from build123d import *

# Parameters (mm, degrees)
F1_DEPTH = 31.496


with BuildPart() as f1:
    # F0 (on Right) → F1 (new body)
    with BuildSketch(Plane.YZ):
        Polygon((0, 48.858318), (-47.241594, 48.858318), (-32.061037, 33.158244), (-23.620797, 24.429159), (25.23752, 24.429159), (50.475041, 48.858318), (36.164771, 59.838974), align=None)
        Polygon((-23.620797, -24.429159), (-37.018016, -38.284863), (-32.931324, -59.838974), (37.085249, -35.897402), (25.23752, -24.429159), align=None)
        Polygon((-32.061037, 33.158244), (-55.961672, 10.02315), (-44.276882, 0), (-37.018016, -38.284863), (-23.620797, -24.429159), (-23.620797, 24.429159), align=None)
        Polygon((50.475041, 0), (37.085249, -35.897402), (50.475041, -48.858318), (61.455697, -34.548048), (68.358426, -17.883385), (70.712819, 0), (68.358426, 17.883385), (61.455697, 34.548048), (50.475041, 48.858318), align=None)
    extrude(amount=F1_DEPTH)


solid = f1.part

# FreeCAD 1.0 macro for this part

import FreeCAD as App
import Part
import Sketcher

V = App.Vector
Q = App.Units.Quantity

doc = App.newDocument("Part")
body = doc.addObject("PartDesign::Body", "Body")
body.AllowCompound = True

# Sketch on YZ plane
sketch1 = body.newObject("Sketcher::SketchObject", "Sketch")
sketch1.AttachmentSupport = (doc.getObject("YZ_Plane"), [""])
sketch1.MapMode = "FlatFace"
sketch1.addGeometry([
    Part.LineSegment(V(0, 49, 0), V(-47, 49, 0)),  # 0
    Part.LineSegment(V(-47, 49, 0), V(-32, 33, 0)),  # 1
    Part.LineSegment(V(-32, 33, 0), V(-56, 10, 0)),  # 2
    Part.LineSegment(V(-56, 10, 0), V(-44, 0, 0)),  # 3
    Part.LineSegment(V(-44, 0, 0), V(-37, -38, 0)),  # 4
    Part.LineSegment(V(-37, -38, 0), V(-33, -60, 0)),  # 5
    Part.LineSegment(V(-33, -60, 0), V(37, -36, 0)),  # 6
    Part.LineSegment(V(37, -36, 0), V(25, -24, 0)),  # 7
    Part.LineSegment(V(25, -24, 0), V(-24, -24, 0)),  # 8
    Part.LineSegment(V(-24, -24, 0), V(-24, 24, 0)),  # 9
    Part.LineSegment(V(-24, 24, 0), V(25, 24, 0)),  # 10
    Part.LineSegment(V(25, 24, 0), V(50, 49, 0)),  # 11
    Part.LineSegment(V(50, 49, 0), V(36, 60, 0)),  # 12
    Part.LineSegment(V(36, 60, 0), V(0, 49, 0)),  # 13
    Part.LineSegment(V(50, 0, 0), V(37, -36, 0)),  # 14
    Part.LineSegment(V(37, -36, 0), V(50, -49, 0)),  # 15
    Part.LineSegment(V(50, -49, 0), V(61, -35, 0)),  # 16
    Part.LineSegment(V(61, -35, 0), V(68, -18, 0)),  # 17
    Part.LineSegment(V(68, -18, 0), V(71, 0, 0)),  # 18
    Part.LineSegment(V(71, 0, 0), V(68, 18, 0)),  # 19
    Part.LineSegment(V(68, 18, 0), V(61, 35, 0)),  # 20
    Part.LineSegment(V(61, 35, 0), V(50, 49, 0)),  # 21
    Part.LineSegment(V(50, 49, 0), V(50, 0, 0)),  # 22
], False)
sketch1.addConstraint([
    Sketcher.Constraint("Coincident", 0, 2, 1, 1),
    Sketcher.Constraint("Coincident", 1, 2, 2, 1),
    Sketcher.Constraint("Coincident", 2, 2, 3, 1),
    Sketcher.Constraint("Coincident", 3, 2, 4, 1),
    Sketcher.Constraint("Coincident", 4, 2, 5, 1),
    Sketcher.Constraint("Coincident", 5, 2, 6, 1),
    Sketcher.Constraint("Coincident", 6, 2, 7, 1),
    Sketcher.Constraint("Coincident", 7, 2, 8, 1),
    Sketcher.Constraint("Coincident", 8, 2, 9, 1),
    Sketcher.Constraint("Coincident", 9, 2, 10, 1),
    Sketcher.Constraint("Coincident", 10, 2, 11, 1),
    Sketcher.Constraint("Coincident", 11, 2, 12, 1),
    Sketcher.Constraint("Coincident", 12, 2, 13, 1),
    Sketcher.Constraint("Coincident", 13, 2, 0, 1),
    Sketcher.Constraint("Coincident", 14, 2, 15, 1),
    Sketcher.Constraint("Coincident", 15, 2, 16, 1),
    Sketcher.Constraint("Coincident", 16, 2, 17, 1),
    Sketcher.Constraint("Coincident", 17, 2, 18, 1),
    Sketcher.Constraint("Coincident", 18, 2, 19, 1),
    Sketcher.Constraint("Coincident", 19, 2, 20, 1),
    Sketcher.Constraint("Coincident", 20, 2, 21, 1),
    Sketcher.Constraint("Coincident", 21, 2, 22, 1),
    Sketcher.Constraint("Coincident", 22, 2, 14, 1),
    Sketcher.Constraint("Horizontal", 0),
    Sketcher.Constraint("Horizontal", 8),
    Sketcher.Constraint("Vertical", 9),
    Sketcher.Constraint("Horizontal", 10),
    Sketcher.Constraint("Vertical", 22),
    Sketcher.Constraint("Coincident", 14, 2, 6, 2),
    Sketcher.Constraint("Coincident", 21, 2, 11, 2),
    Sketcher.Constraint("Symmetric", 7, 2, 10, 2, -1),
    Sketcher.Constraint("Symmetric", 11, 2, 15, 2, -1),
    Sketcher.Constraint("Symmetric", 17, 2, 19, 2, -1),
    Sketcher.Constraint("Symmetric", 16, 2, 20, 2, -1),
    Sketcher.Constraint("PointOnObject", 3, 2, -1),
    Sketcher.Constraint("PointOnObject", 13, 2, -2),
    Sketcher.Constraint("PointOnObject", 18, 2, -1),
    Sketcher.Constraint("PointOnObject", 22, 2, -1),
    Sketcher.Constraint("Parallel", 4, 5),
    Sketcher.Constraint("Parallel", 2, 11),
    Sketcher.Constraint("Parallel", 7, 15),
    Sketcher.Constraint("Perpendicular", 12, 16),
    Sketcher.Constraint("Horizontal", 0, 2, 11, 2),
    Sketcher.Constraint("Equal", 10, 9),
    Sketcher.Constraint("Equal", 9, 22),
    Sketcher.Constraint("Equal", 12, 16),
    Sketcher.Constraint("Equal", 16, 17),
    Sketcher.Constraint("Equal", 17, 18),
    Sketcher.Constraint("Angle", 12, Q("142.500001 deg")),
    Sketcher.Constraint("Angle", 17, Q("67.500001 deg")),
    Sketcher.Constraint("Angle", 18, Q("82.499998 deg")),
    Sketcher.Constraint("DistanceY", 4, 2, 7, 2, Q("0.5455002 in")),
    Sketcher.Constraint("Distance", 12, Q("18.0377 mm")),
    Sketcher.Constraint("DistanceX", 7, 2, 18, 2, Q("45.475299 mm")),
    Sketcher.Constraint("Distance", 5, Q("21.938112 mm")),
    Sketcher.Constraint("DistanceX", 0, 2, 0, 1, Q("47.241594 mm")),
    Sketcher.Constraint("DistanceY", -1, 1, 2, 2, Q("10.02315 mm")),
    Sketcher.Constraint("DistanceX", -1, 1, 6, 2, Q("37.085249 mm")),
    Sketcher.Constraint("DistanceX", -1, 1, 7, 2, Q("25.23752 mm")),
    Sketcher.Constraint("DistanceX", 2, 2, 0, 2, Q("8.720078 mm")),
    Sketcher.Constraint("DistanceX", 2, 2, 3, 2, Q("11.68479 mm")),
    Sketcher.Constraint("DistanceX", 4, 2, 1, 2, Q("4.956979 mm")),
    Sketcher.Constraint("DistanceY", 5, 2, 4, 2, Q("21.554111 mm")),
])
pad1 = body.newObject("PartDesign::Pad", "Pad")
pad1.Profile = sketch1
pad1.Length = Q("1.24 in")

doc.recompute()
